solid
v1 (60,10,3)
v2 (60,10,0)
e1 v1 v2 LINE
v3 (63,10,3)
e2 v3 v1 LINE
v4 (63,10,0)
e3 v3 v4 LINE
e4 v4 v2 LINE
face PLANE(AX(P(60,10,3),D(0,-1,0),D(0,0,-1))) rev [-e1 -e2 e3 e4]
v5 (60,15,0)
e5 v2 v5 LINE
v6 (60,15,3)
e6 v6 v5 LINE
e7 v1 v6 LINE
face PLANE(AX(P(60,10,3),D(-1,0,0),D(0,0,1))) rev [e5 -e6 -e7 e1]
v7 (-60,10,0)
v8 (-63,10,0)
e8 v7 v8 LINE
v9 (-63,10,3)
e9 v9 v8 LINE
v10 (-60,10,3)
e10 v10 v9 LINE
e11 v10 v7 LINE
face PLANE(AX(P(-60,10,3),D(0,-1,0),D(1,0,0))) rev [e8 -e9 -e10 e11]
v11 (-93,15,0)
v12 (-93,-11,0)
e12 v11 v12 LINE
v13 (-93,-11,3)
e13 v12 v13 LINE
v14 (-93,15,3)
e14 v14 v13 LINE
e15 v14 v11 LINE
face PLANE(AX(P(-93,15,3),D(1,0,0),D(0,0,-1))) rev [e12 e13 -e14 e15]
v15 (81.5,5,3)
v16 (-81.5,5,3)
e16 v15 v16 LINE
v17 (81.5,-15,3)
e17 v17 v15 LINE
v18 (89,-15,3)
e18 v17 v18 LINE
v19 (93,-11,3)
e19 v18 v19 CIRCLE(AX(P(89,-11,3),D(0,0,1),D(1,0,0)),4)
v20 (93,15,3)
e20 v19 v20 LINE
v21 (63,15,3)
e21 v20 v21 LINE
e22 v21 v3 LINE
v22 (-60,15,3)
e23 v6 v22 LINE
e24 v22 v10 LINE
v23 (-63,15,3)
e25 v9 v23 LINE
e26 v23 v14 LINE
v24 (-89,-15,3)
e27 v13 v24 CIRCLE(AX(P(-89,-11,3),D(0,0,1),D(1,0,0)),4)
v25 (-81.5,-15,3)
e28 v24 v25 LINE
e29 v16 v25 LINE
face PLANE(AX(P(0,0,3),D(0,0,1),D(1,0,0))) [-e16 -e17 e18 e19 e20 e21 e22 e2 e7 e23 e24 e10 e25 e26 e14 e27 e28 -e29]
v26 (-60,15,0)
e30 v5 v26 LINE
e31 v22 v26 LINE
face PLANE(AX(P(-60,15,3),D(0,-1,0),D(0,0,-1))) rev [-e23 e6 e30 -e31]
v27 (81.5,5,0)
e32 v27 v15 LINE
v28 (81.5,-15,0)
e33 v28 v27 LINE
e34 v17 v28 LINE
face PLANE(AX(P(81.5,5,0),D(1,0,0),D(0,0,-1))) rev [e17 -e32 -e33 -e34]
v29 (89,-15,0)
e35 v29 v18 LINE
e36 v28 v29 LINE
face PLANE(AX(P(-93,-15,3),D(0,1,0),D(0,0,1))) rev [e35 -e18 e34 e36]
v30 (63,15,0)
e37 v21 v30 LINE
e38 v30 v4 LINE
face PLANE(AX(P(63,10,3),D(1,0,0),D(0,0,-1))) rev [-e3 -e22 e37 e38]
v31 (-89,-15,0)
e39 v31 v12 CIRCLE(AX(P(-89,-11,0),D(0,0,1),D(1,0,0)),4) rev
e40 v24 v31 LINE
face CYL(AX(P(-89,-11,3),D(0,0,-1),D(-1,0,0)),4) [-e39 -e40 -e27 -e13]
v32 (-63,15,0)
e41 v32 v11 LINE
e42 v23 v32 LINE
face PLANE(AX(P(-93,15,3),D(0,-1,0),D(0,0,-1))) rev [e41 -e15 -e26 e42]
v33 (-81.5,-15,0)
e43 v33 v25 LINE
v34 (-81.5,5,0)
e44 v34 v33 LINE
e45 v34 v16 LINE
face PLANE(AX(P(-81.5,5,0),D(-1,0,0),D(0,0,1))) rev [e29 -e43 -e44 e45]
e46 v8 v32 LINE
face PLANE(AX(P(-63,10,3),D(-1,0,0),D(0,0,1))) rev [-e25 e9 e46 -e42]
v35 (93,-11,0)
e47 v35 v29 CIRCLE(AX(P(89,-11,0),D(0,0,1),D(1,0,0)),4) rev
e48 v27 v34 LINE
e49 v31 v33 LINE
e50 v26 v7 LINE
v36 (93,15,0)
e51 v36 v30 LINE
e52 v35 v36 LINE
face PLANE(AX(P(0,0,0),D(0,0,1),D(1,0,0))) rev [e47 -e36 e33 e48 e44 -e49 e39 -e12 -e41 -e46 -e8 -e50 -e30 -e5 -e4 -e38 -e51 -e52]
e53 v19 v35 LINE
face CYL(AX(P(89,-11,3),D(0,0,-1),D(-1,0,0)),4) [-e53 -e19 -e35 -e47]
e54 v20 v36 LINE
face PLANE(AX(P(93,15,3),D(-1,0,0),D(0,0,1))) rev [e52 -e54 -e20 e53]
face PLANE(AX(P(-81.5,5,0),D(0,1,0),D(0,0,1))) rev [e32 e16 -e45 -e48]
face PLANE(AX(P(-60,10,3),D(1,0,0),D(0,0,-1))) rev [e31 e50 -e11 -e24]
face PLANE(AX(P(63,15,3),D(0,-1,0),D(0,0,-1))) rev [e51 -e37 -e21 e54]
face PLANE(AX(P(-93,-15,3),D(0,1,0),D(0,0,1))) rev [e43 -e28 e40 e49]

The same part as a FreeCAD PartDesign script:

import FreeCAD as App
import Part
import Sketcher
from FreeCAD import Vector


def edges_at(feature, points):
    """Names of the edges that pass closest to the given points."""
    edges = feature.Shape.Edges
    near = lambda p: min(range(len(edges)), key=lambda i: edges[i].distToShape(Part.Vertex(*p))[0])
    return sorted({f"Edge{near(p) + 1}" for p in points})


def add_polygon(sketch, points):
    """Adds a closed chain of lines whose ends are joined by coincident constraints."""
    first, n = sketch.GeometryCount, len(points)
    for a, b in zip(points, points[1:] + points[:1]):
        sketch.addGeometry(Part.LineSegment(App.Vector(*a, 0), App.Vector(*b, 0)), False)
    for i in range(n):
        sketch.addConstraint(Sketcher.Constraint("Coincident", first + i, 2, first + (i + 1) % n, 1))

doc = App.newDocument("Part")
params = doc.addObject("Spreadsheet::Sheet", "Params")
for row, (alias, value) in enumerate([
    ("sketch1_width", "30 mm"),
    ("sketch1_width2", "186 mm"),
    ("sketch1_width3", "3 mm"),
    ("sketch1_height", "5 mm"),
    ("pad1_length", "3 mm"),
    ("sketch2_width", "163 mm"),
    ("sketch2_height", "40 mm"),
    ("pocket1_length", "3 mm"),
    ("fillet_radius", "4 mm"),
], start=1):
    params.set(f"A{row}", alias)
    params.set(f"B{row}", "=" + value)
    params.setAlias(f"B{row}", alias)

body = doc.addObject("PartDesign::Body", "Body")

sketch1 = body.newObject("Sketcher::SketchObject", "Sketch")
sketch1.AttachmentSupport = (doc.getObject("XY_Plane"), [""])
sketch1.MapMode = "FlatFace"
add_polygon(sketch1, [(-63, 15), (-93, 15), (-93, -15), (93, -15), (93, 15), (63, 15), (63, 10), (60, 10), (60, 15), (-60, 15), (-60, 10), (-63, 10)])
sketch1.addConstraint([
    Sketcher.Constraint("Horizontal", 0),
    Sketcher.Constraint("Vertical", 1),
    Sketcher.Constraint("Horizontal", 2),
    Sketcher.Constraint("Vertical", 3),
    Sketcher.Constraint("Horizontal", 4),
    Sketcher.Constraint("Vertical", 5),
    Sketcher.Constraint("Horizontal", 6),
    Sketcher.Constraint("Vertical", 7),
    Sketcher.Constraint("Horizontal", 8),
    Sketcher.Constraint("Vertical", 9),
    Sketcher.Constraint("Horizontal", 10),
    Sketcher.Constraint("Vertical", 11),
    Sketcher.Constraint("Symmetric", 0, 2, 2, 2, -1, 1),
    Sketcher.Constraint("Symmetric", 6, 2, 9, 2, -2),
    Sketcher.Constraint("Symmetric", 4, 2, 11, 2, -2),
    Sketcher.Constraint("Horizontal", 4, 2, 7, 2),
    Sketcher.Constraint("Equal", 4, 1),
    Sketcher.Constraint("DistanceX", 0, 2, 0, 1, 30.0),
    Sketcher.Constraint("DistanceX", 2, 1, 2, 2, 186.0),
    Sketcher.Constraint("DistanceX", 6, 2, 6, 1, 3.0),
    Sketcher.Constraint("DistanceY", 5, 2, 5, 1, 5.0),
])
sketch1.setExpression("Constraints[29]", "Params.sketch1_width")
sketch1.setExpression("Constraints[30]", "Params.sketch1_width2")
sketch1.setExpression("Constraints[31]", "Params.sketch1_width3")
sketch1.setExpression("Constraints[32]", "Params.sketch1_height")
pad1 = body.newObject("PartDesign::Pad", "Pad")
pad1.Profile = sketch1
pad1.setExpression("Length", "Params.pad1_length")

sketch2 = body.newObject("Sketcher::SketchObject", "Sketch001")
sketch2.AttachmentSupport = (doc.getObject("XY_Plane"), [""])
sketch2.MapMode = "FlatFace"
sketch2.AttachmentOffset = App.Placement(Vector(0, 0, 3), App.Rotation())
add_polygon(sketch2, [(-82, 5), (-82, -35), (82, -35), (82, 5)])
sketch2.addConstraint([
    Sketcher.Constraint("Vertical", 0),
    Sketcher.Constraint("Horizontal", 1),
    Sketcher.Constraint("Vertical", 2),
    Sketcher.Constraint("Horizontal", 3),
    Sketcher.Constraint("DistanceX", 1, 1, 1, 2, 163.0),
    Sketcher.Constraint("DistanceY", 0, 2, 0, 1, 40.0),
    Sketcher.Constraint("DistanceY", 0, 2, -1, 1, 35.0),
    Sketcher.Constraint("DistanceX", 0, 2, -1, 1, 81.5),
])
sketch2.setExpression("Constraints[8]", "Params.sketch2_width")
sketch2.setExpression("Constraints[9]", "Params.sketch2_height")
pocket1 = body.newObject("PartDesign::Pocket", "Pocket")
pocket1.Profile = sketch2
pocket1.setExpression("Length", "Params.pocket1_length")
doc.recompute()

fillet = body.newObject("PartDesign::Fillet", "Fillet")
fillet.Base = (pocket1, edges_at(pocket1, [(93, -15, 1.5), (-93, -15, 1.5)]))
fillet.setExpression("Radius", "Params.fillet_radius")

doc.recompute()
